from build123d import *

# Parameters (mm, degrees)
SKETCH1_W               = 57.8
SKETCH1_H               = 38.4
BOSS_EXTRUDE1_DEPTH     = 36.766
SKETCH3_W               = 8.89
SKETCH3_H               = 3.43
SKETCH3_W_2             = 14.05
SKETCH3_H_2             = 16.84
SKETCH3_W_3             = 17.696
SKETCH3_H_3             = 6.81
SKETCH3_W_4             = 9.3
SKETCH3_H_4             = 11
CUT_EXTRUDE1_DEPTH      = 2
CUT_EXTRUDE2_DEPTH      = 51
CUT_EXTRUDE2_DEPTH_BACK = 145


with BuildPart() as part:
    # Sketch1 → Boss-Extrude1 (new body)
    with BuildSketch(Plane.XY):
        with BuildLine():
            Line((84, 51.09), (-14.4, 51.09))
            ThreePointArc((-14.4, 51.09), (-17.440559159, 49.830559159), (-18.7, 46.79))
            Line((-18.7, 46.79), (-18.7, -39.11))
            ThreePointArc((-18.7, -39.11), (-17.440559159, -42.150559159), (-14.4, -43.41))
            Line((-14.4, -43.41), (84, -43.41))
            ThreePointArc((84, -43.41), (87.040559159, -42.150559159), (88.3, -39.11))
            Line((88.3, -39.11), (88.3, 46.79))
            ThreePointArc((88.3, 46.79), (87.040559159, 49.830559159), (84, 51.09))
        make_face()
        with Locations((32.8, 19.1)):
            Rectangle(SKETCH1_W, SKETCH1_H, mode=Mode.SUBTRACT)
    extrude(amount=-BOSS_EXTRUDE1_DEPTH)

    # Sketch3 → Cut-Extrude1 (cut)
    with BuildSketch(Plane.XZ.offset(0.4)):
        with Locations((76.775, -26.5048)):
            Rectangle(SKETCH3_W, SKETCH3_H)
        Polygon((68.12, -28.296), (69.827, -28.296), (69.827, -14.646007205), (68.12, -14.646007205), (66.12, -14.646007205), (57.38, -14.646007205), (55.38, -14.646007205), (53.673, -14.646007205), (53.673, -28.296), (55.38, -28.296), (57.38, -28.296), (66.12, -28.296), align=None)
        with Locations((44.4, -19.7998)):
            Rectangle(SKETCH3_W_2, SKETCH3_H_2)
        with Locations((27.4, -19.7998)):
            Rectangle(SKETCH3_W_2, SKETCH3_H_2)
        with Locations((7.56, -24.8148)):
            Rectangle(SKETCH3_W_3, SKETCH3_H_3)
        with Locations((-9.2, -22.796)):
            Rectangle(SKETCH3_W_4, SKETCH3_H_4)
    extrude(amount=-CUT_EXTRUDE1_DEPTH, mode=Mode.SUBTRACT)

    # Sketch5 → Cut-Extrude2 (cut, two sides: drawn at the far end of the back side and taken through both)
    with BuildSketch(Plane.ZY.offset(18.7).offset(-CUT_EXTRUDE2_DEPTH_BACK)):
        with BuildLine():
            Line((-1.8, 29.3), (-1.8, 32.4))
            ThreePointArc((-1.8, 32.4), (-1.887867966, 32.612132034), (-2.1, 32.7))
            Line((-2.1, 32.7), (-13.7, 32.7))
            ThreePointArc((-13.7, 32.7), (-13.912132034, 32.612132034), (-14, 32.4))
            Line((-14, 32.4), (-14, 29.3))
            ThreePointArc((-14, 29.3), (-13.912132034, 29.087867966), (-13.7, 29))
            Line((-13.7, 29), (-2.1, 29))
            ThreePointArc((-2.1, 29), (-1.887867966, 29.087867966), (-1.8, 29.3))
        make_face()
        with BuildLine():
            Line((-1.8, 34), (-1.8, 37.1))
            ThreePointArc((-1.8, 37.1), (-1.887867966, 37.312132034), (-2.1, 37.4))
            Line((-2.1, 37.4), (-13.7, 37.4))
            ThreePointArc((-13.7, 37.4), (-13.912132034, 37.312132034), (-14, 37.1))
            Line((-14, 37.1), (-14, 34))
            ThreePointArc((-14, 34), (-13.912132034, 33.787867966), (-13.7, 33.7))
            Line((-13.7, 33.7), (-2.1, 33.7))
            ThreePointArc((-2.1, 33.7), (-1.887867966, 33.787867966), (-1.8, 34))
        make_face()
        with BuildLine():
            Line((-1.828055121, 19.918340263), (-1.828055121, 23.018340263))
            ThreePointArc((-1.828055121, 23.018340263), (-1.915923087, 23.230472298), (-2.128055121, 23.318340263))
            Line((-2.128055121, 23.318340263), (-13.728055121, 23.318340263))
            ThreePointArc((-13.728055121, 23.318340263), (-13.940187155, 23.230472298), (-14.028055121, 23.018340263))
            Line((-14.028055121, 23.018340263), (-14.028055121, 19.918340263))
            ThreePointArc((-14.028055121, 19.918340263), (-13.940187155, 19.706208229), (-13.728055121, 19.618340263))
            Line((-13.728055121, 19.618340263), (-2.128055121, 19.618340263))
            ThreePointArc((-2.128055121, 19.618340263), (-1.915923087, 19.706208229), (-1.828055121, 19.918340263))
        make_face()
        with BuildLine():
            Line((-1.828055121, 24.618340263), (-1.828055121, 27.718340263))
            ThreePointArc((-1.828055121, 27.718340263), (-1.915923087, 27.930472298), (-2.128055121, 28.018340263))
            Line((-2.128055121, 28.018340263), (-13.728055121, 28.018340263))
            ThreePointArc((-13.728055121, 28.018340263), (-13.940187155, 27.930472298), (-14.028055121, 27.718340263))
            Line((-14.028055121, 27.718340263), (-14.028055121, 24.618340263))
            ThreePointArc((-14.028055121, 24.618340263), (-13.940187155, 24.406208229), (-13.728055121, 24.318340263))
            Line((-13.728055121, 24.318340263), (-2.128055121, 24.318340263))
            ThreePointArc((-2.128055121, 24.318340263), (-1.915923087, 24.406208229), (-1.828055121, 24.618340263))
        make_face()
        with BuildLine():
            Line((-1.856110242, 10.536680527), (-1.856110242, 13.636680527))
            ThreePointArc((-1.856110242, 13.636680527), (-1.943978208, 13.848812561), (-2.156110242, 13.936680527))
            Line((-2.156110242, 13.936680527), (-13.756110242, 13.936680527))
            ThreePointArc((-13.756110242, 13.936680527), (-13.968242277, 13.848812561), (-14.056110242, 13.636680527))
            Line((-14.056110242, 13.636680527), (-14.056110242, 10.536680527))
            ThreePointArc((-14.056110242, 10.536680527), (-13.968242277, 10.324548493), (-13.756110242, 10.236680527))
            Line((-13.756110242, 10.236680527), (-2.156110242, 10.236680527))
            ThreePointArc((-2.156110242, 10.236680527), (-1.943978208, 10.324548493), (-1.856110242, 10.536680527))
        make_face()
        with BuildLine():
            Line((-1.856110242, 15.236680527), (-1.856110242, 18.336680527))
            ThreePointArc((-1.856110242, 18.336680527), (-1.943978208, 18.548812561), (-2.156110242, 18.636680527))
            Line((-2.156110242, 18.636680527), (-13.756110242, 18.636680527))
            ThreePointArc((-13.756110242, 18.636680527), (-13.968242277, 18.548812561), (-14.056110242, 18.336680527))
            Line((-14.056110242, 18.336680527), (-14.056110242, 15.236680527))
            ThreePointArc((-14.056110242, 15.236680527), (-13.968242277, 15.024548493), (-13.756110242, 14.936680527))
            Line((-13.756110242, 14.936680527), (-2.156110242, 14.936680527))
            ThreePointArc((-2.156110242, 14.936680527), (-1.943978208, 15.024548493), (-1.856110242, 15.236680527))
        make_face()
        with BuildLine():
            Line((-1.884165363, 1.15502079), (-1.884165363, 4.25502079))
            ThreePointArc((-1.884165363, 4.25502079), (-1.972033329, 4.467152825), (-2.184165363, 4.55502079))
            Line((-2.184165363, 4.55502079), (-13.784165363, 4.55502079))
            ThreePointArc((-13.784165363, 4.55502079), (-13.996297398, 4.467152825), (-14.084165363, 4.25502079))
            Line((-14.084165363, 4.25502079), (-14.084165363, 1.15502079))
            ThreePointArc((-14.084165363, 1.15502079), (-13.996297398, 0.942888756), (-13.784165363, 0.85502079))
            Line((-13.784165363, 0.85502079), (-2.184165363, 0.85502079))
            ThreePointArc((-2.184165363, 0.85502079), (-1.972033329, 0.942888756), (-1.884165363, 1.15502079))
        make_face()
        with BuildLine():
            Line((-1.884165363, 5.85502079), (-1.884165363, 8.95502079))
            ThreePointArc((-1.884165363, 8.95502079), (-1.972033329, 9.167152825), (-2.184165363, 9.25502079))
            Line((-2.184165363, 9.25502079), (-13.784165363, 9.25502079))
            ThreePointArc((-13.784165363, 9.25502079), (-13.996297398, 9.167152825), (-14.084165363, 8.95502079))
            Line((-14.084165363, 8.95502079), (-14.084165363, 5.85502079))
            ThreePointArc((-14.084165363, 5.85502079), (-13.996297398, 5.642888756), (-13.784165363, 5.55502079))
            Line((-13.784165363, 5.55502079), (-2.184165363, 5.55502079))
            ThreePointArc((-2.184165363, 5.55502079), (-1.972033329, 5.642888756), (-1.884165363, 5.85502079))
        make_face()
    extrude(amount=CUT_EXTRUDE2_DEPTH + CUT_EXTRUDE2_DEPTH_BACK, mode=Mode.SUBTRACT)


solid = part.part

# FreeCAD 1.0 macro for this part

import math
import FreeCAD as App
import Part
import Sketcher
from FreeCAD import Vector
Q = App.Units.Quantity

doc = App.newDocument("Part")
body = doc.addObject("PartDesign::Body", "Body")

sketch1 = doc.addObject("Sketcher::SketchObject", "Sketch")
body.addObject(sketch1)
sketch1.AttachmentSupport = (doc.XY_Plane, [""])
sketch1.MapMode = "FlatFace"
sketch1.addGeometry([
    Part.LineSegment(Vector(84, 51.1, 0), Vector(-14.4, 51.1, 0)),
    Part.ArcOfCircle(Part.Circle(Vector(-14.4, 46.8, 0), Vector(0, 0, 1), 4.3), math.radians(90), math.radians(180)),
    Part.LineSegment(Vector(-18.7, 46.8, 0), Vector(-18.7, -39.1, 0)),
    Part.ArcOfCircle(Part.Circle(Vector(-14.4, -39.1, 0), Vector(0, 0, 1), 4.3), math.radians(180), math.radians(270)),
    Part.LineSegment(Vector(-14.4, -43.4, 0), Vector(84, -43.4, 0)),
    Part.ArcOfCircle(Part.Circle(Vector(84, -39.1, 0), Vector(0, 0, 1), 4.3), math.radians(-90), math.radians(0)),
    Part.LineSegment(Vector(88.3, -39.1, 0), Vector(88.3, 46.8, 0)),
    Part.ArcOfCircle(Part.Circle(Vector(84, 46.8, 0), Vector(0, 0, 1), 4.3), math.radians(0), math.radians(90)),
    Part.LineSegment(Vector(61.7, -0.1, 0), Vector(3.9, -0.1, 0)),
    Part.LineSegment(Vector(3.9, -0.1, 0), Vector(3.9, 38.3, 0)),
    Part.LineSegment(Vector(3.9, 38.3, 0), Vector(61.7, 38.3, 0)),
    Part.LineSegment(Vector(61.7, 38.3, 0), Vector(61.7, -0.1, 0)),
], False)
sketch1.addConstraint([
    Sketcher.Constraint("Tangent", 0, 2, 1, 1),
    Sketcher.Constraint("Tangent", 1, 2, 2, 1),
    Sketcher.Constraint("Tangent", 2, 2, 3, 1),
    Sketcher.Constraint("Tangent", 3, 2, 4, 1),
    Sketcher.Constraint("Tangent", 4, 2, 5, 1),
    Sketcher.Constraint("Tangent", 5, 2, 6, 1),
    Sketcher.Constraint("Tangent", 6, 2, 7, 1),
    Sketcher.Constraint("Tangent", 7, 2, 0, 1),
    Sketcher.Constraint("Coincident", 8, 2, 9, 1),
    Sketcher.Constraint("Coincident", 9, 2, 10, 1),
    Sketcher.Constraint("Coincident", 10, 2, 11, 1),
    Sketcher.Constraint("Coincident", 11, 2, 8, 1),
    Sketcher.Constraint("Horizontal", 0),
    Sketcher.Constraint("Vertical", 2),
    Sketcher.Constraint("Horizontal", 4),
    Sketcher.Constraint("Vertical", 6),
    Sketcher.Constraint("Horizontal", 8),
    Sketcher.Constraint("Vertical", 9),
    Sketcher.Constraint("Horizontal", 10),
    Sketcher.Constraint("Vertical", 11),
    Sketcher.Constraint("Equal", 1, 3),
    Sketcher.Constraint("Equal", 3, 5),
    Sketcher.Constraint("Equal", 5, 7),
    Sketcher.Constraint("Radius", 1, Q("4.3 mm")),
    Sketcher.Constraint("DistanceX", 0, 2, 0, 1, Q("98.4 mm")),
    Sketcher.Constraint("DistanceX", 8, 2, 8, 1, Q("57.8 mm")),
    Sketcher.Constraint("DistanceY", 2, 2, 2, 1, Q("85.9 mm")),
    Sketcher.Constraint("DistanceY", 9, 1, 9, 2, Q("38.4 mm")),
    Sketcher.Constraint("DistanceX", -1, 1, 5, 3, Q("84 mm")),
    Sketcher.Constraint("DistanceX", -1, 1, 8, 2, Q("3.9 mm")),
    Sketcher.Constraint("DistanceY", 8, 2, -1, 1, Q("0.1 mm")),
    Sketcher.Constraint("DistanceY", -1, 1, 1, 3, Q("46.79 mm")),
])
pad1 = doc.addObject("PartDesign::Pad", "Pad")
body.addObject(pad1)
pad1.Profile = sketch1
pad1.Length = 36.766
pad1.Reversed = True

sketch2 = doc.addObject("Sketcher::SketchObject", "Sketch001")
body.addObject(sketch2)
sketch2.AttachmentSupport = (doc.XZ_Plane, [""])
sketch2.MapMode = "FlatFace"
sketch2.AttachmentOffset = App.Placement(Vector(0, 0, 0.4), App.Rotation())
sketch2.addGeometry([
    Part.LineSegment(Vector(72.3, -24.8, 0), Vector(72.3, -28.2, 0)),
    Part.LineSegment(Vector(72.3, -28.2, 0), Vector(81.2, -28.2, 0)),
    Part.LineSegment(Vector(81.2, -28.2, 0), Vector(81.2, -24.8, 0)),
    Part.LineSegment(Vector(81.2, -24.8, 0), Vector(72.3, -24.8, 0)),
    Part.LineSegment(Vector(69.8, -28.3, 0), Vector(69.8, -14.6, 0)),
    Part.LineSegment(Vector(69.8, -14.6, 0), Vector(53.7, -14.6, 0)),
    Part.LineSegment(Vector(53.7, -14.6, 0), Vector(53.7, -28.3, 0)),
    Part.LineSegment(Vector(53.7, -28.3, 0), Vector(69.8, -28.3, 0)),
    Part.LineSegment(Vector(37.4, -11.4, 0), Vector(37.4, -28.2, 0)),
    Part.LineSegment(Vector(37.4, -28.2, 0), Vector(51.4, -28.2, 0)),
    Part.LineSegment(Vector(51.4, -28.2, 0), Vector(51.4, -11.4, 0)),
    Part.LineSegment(Vector(51.4, -11.4, 0), Vector(37.4, -11.4, 0)),
    Part.LineSegment(Vector(20.4, -11.4, 0), Vector(20.4, -28.2, 0)),
    Part.LineSegment(Vector(20.4, -28.2, 0), Vector(34.4, -28.2, 0)),
    Part.LineSegment(Vector(34.4, -28.2, 0), Vector(34.4, -11.4, 0)),
    Part.LineSegment(Vector(34.4, -11.4, 0), Vector(20.4, -11.4, 0)),
    Part.LineSegment(Vector(-1.3, -21.4, 0), Vector(-1.3, -28.2, 0)),
    Part.LineSegment(Vector(-1.3, -28.2, 0), Vector(16.4, -28.2, 0)),
    Part.LineSegment(Vector(16.4, -28.2, 0), Vector(16.4, -21.4, 0)),
    Part.LineSegment(Vector(16.4, -21.4, 0), Vector(-1.3, -21.4, 0)),
    Part.LineSegment(Vector(-13.8, -17.3, 0), Vector(-13.8, -28.3, 0)),
    Part.LineSegment(Vector(-13.8, -28.3, 0), Vector(-4.5, -28.3, 0)),
    Part.LineSegment(Vector(-4.5, -28.3, 0), Vector(-4.5, -17.3, 0)),
    Part.LineSegment(Vector(-4.5, -17.3, 0), Vector(-13.8, -17.3, 0)),
], False)
sketch2.addConstraint([
    Sketcher.Constraint("Coincident", 0, 2, 1, 1),
    Sketcher.Constraint("Coincident", 1, 2, 2, 1),
    Sketcher.Constraint("Coincident", 2, 2, 3, 1),
    Sketcher.Constraint("Coincident", 3, 2, 0, 1),
    Sketcher.Constraint("Coincident", 4, 2, 5, 1),
    Sketcher.Constraint("Coincident", 5, 2, 6, 1),
    Sketcher.Constraint("Coincident", 6, 2, 7, 1),
    Sketcher.Constraint("Coincident", 7, 2, 4, 1),
    Sketcher.Constraint("Coincident", 8, 2, 9, 1),
    Sketcher.Constraint("Coincident", 9, 2, 10, 1),
    Sketcher.Constraint("Coincident", 10, 2, 11, 1),
    Sketcher.Constraint("Coincident", 11, 2, 8, 1),
    Sketcher.Constraint("Coincident", 12, 2, 13, 1),
    Sketcher.Constraint("Coincident", 13, 2, 14, 1),
    Sketcher.Constraint("Coincident", 14, 2, 15, 1),
    Sketcher.Constraint("Coincident", 15, 2, 12, 1),
    Sketcher.Constraint("Coincident", 16, 2, 17, 1),
    Sketcher.Constraint("Coincident", 17, 2, 18, 1),
    Sketcher.Constraint("Coincident", 18, 2, 19, 1),
    Sketcher.Constraint("Coincident", 19, 2, 16, 1),
    Sketcher.Constraint("Coincident", 20, 2, 21, 1),
    Sketcher.Constraint("Coincident", 21, 2, 22, 1),
    Sketcher.Constraint("Coincident", 22, 2, 23, 1),
    Sketcher.Constraint("Coincident", 23, 2, 20, 1),
    Sketcher.Constraint("Vertical", 0),
    Sketcher.Constraint("Horizontal", 1),
    Sketcher.Constraint("Vertical", 2),
    Sketcher.Constraint("Horizontal", 3),
    Sketcher.Constraint("Vertical", 4),
    Sketcher.Constraint("Horizontal", 5),
    Sketcher.Constraint("Vertical", 6),
    Sketcher.Constraint("Horizontal", 7),
    Sketcher.Constraint("Vertical", 8),
    Sketcher.Constraint("Horizontal", 9),
    Sketcher.Constraint("Vertical", 10),
    Sketcher.Constraint("Horizontal", 11),
    Sketcher.Constraint("Vertical", 12),
    Sketcher.Constraint("Horizontal", 13),
    Sketcher.Constraint("Vertical", 14),
    Sketcher.Constraint("Horizontal", 15),
    Sketcher.Constraint("Vertical", 16),
    Sketcher.Constraint("Horizontal", 17),
    Sketcher.Constraint("Vertical", 18),
    Sketcher.Constraint("Horizontal", 19),
    Sketcher.Constraint("Vertical", 20),
    Sketcher.Constraint("Horizontal", 21),
    Sketcher.Constraint("Vertical", 22),
    Sketcher.Constraint("Horizontal", 23),
    Sketcher.Constraint("Horizontal", 1, 2, 8, 2),
    Sketcher.Constraint("Horizontal", 9, 2, 12, 2),
    Sketcher.Constraint("Horizontal", 11, 2, 14, 2),
    Sketcher.Constraint("Horizontal", 13, 2, 16, 2),
    Sketcher.Constraint("Horizontal", 7, 2, 20, 2),
    Sketcher.Constraint("Equal", 11, 13),
    Sketcher.Constraint("DistanceY", 20, 2, 20, 1, Q("11 mm")),
    Sketcher.Constraint("DistanceX", 21, 1, 21, 2, Q("9.3 mm")),
    Sketcher.Constraint("DistanceX", 12, 2, 8, 2, Q("17 mm")),
    Sketcher.Constraint("DistanceX", 1, 1, 1, 2, Q("8.89 mm")),
    Sketcher.Constraint("DistanceX", 9, 1, 9, 2, Q("14.05 mm")),
    Sketcher.Constraint("DistanceY", 0, 2, 0, 1, Q("3.43 mm")),
    Sketcher.Constraint("DistanceY", 8, 2, 8, 1, Q("16.84 mm")),
    Sketcher.Constraint("DistanceY", 16, 2, 16, 1, Q("6.81 mm")),
    Sketcher.Constraint("DistanceX", 5, 2, 5, 1, Q("16.154 mm")),
    Sketcher.Constraint("DistanceX", 17, 1, 17, 2, Q("17.696 mm")),
    Sketcher.Constraint("DistanceX", -1, 1, 0, 2, Q("72.33 mm")),
    Sketcher.Constraint("DistanceX", 20, 2, -1, 1, Q("13.85 mm")),
    Sketcher.Constraint("DistanceX", -1, 1, 4, 2, Q("69.827 mm")),
    Sketcher.Constraint("DistanceY", 6, 2, -1, 1, Q("28.296 mm")),
    Sketcher.Constraint("DistanceX", -1, 1, 8, 2, Q("37.375 mm")),
    Sketcher.Constraint("DistanceX", 16, 2, -1, 1, Q("1.288 mm")),
    Sketcher.Constraint("DistanceY", 0, 2, -1, 1, Q("28.2198 mm")),
    Sketcher.Constraint("DistanceY", 4, 1, 4, 2, Q("13.649993 mm")),
])
pocket1 = doc.addObject("PartDesign::Pocket", "Pocket")
body.addObject(pocket1)
pocket1.Profile = sketch2
pocket1.Length = 2

sketch3 = doc.addObject("Sketcher::SketchObject", "Sketch002")
body.addObject(sketch3)
sketch3.AttachmentSupport = (doc.YZ_Plane, [""])
sketch3.MapMode = "FlatFace"
sketch3.AttachmentOffset = App.Placement(Vector(0, 0, -18.7), App.Rotation())
sketch3.addGeometry([
    Part.LineSegment(Vector(29.3, -1.8, 0), Vector(32.4, -1.8, 0)),
    Part.ArcOfCircle(Part.Circle(Vector(32.4, -2.1, 0), Vector(0, 0, 1), 0.3), math.radians(0), math.radians(90)),
    Part.LineSegment(Vector(32.7, -2.1, 0), Vector(32.7, -13.7, 0)),
    Part.ArcOfCircle(Part.Circle(Vector(32.4, -13.7, 0), Vector(0, 0, 1), 0.3), math.radians(-90), math.radians(0)),
    Part.LineSegment(Vector(32.4, -14, 0), Vector(29.3, -14, 0)),
    Part.ArcOfCircle(Part.Circle(Vector(29.3, -13.7, 0), Vector(0, 0, 1), 0.3), math.radians(-180), math.radians(-90)),
    Part.LineSegment(Vector(29, -13.7, 0), Vector(29, -2.1, 0)),
    Part.ArcOfCircle(Part.Circle(Vector(29.3, -2.1, 0), Vector(0, 0, 1), 0.3), math.radians(90), math.radians(180)),
    Part.LineSegment(Vector(34, -1.8, 0), Vector(37.1, -1.8, 0)),
    Part.ArcOfCircle(Part.Circle(Vector(37.1, -2.1, 0), Vector(0, 0, 1), 0.3), math.radians(0), math.radians(90)),
    Part.LineSegment(Vector(37.4, -2.1, 0), Vector(37.4, -13.7, 0)),
    Part.ArcOfCircle(Part.Circle(Vector(37.1, -13.7, 0), Vector(0, 0, 1), 0.3), math.radians(-90), math.radians(0)),
    Part.LineSegment(Vector(37.1, -14, 0), Vector(34, -14, 0)),
    Part.ArcOfCircle(Part.Circle(Vector(34, -13.7, 0), Vector(0, 0, 1), 0.3), math.radians(-180), math.radians(-90)),
    Part.LineSegment(Vector(33.7, -13.7, 0), Vector(33.7, -2.1, 0)),
    Part.ArcOfCircle(Part.Circle(Vector(34, -2.1, 0), Vector(0, 0, 1), 0.3), math.radians(90), math.radians(180)),
    Part.LineSegment(Vector(19.92, -1.83, 0), Vector(23.02, -1.83, 0)),
    Part.ArcOfCircle(Part.Circle(Vector(23.02, -2.13, 0), Vector(0, 0, 1), 0.3), math.radians(0), math.radians(90)),
    Part.LineSegment(Vector(23.32, -2.13, 0), Vector(23.32, -13.73, 0)),
    Part.ArcOfCircle(Part.Circle(Vector(23.02, -13.73, 0), Vector(0, 0, 1), 0.3), math.radians(-90), math.radians(0)),
    Part.LineSegment(Vector(23.02, -14.03, 0), Vector(19.92, -14.03, 0)),
    Part.ArcOfCircle(Part.Circle(Vector(19.92, -13.73, 0), Vector(0, 0, 1), 0.3), math.radians(-180), math.radians(-90)),
    Part.LineSegment(Vector(19.62, -13.73, 0), Vector(19.62, -2.13, 0)),
    Part.ArcOfCircle(Part.Circle(Vector(19.92, -2.13, 0), Vector(0, 0, 1), 0.3), math.radians(90), math.radians(180)),
    Part.LineSegment(Vector(24.62, -1.83, 0), Vector(27.72, -1.83, 0)),
    Part.ArcOfCircle(Part.Circle(Vector(27.72, -2.13, 0), Vector(0, 0, 1), 0.3), math.radians(0), math.radians(90)),
    Part.LineSegment(Vector(28.02, -2.13, 0), Vector(28.02, -13.73, 0)),
    Part.ArcOfCircle(Part.Circle(Vector(27.72, -13.73, 0), Vector(0, 0, 1), 0.3), math.radians(-90), math.radians(0)),
    Part.LineSegment(Vector(27.72, -14.03, 0), Vector(24.62, -14.03, 0)),
    Part.ArcOfCircle(Part.Circle(Vector(24.62, -13.73, 0), Vector(0, 0, 1), 0.3), math.radians(-180), math.radians(-90)),
    Part.LineSegment(Vector(24.32, -13.73, 0), Vector(24.32, -2.13, 0)),
    Part.ArcOfCircle(Part.Circle(Vector(24.62, -2.13, 0), Vector(0, 0, 1), 0.3), math.radians(90), math.radians(180)),
    Part.LineSegment(Vector(10.54, -1.86, 0), Vector(13.64, -1.86, 0)),
    Part.ArcOfCircle(Part.Circle(Vector(13.64, -2.16, 0), Vector(0, 0, 1), 0.3), math.radians(0), math.radians(90)),
    Part.LineSegment(Vector(13.94, -2.16, 0), Vector(13.94, -13.76, 0)),
    Part.ArcOfCircle(Part.Circle(Vector(13.64, -13.76, 0), Vector(0, 0, 1), 0.3), math.radians(-90), math.radians(0)),
    Part.LineSegment(Vector(13.64, -14.06, 0), Vector(10.54, -14.06, 0)),
    Part.ArcOfCircle(Part.Circle(Vector(10.54, -13.76, 0), Vector(0, 0, 1), 0.3), math.radians(180), math.radians(270)),
    Part.LineSegment(Vector(10.24, -13.76, 0), Vector(10.24, -2.16, 0)),
    Part.ArcOfCircle(Part.Circle(Vector(10.54, -2.16, 0), Vector(0, 0, 1), 0.3), math.radians(90), math.radians(180)),
    Part.LineSegment(Vector(15.24, -1.86, 0), Vector(18.34, -1.86, 0)),
    Part.ArcOfCircle(Part.Circle(Vector(18.34, -2.16, 0), Vector(0, 0, 1), 0.3), math.radians(0), math.radians(90)),
    Part.LineSegment(Vector(18.64, -2.16, 0), Vector(18.64, -13.76, 0)),
    Part.ArcOfCircle(Part.Circle(Vector(18.34, -13.76, 0), Vector(0, 0, 1), 0.3), math.radians(-90), math.radians(0)),
    Part.LineSegment(Vector(18.34, -14.06, 0), Vector(15.24, -14.06, 0)),
    Part.ArcOfCircle(Part.Circle(Vector(15.24, -13.76, 0), Vector(0, 0, 1), 0.3), math.radians(180), math.radians(270)),
    Part.LineSegment(Vector(14.94, -13.76, 0), Vector(14.94, -2.16, 0)),
    Part.ArcOfCircle(Part.Circle(Vector(15.24, -2.16, 0), Vector(0, 0, 1), 0.3), math.radians(90), math.radians(180)),
    Part.LineSegment(Vector(1.16, -1.88, 0), Vector(4.26, -1.88, 0)),
    Part.ArcOfCircle(Part.Circle(Vector(4.26, -2.18, 0), Vector(0, 0, 1), 0.3), math.radians(0), math.radians(90)),
    Part.LineSegment(Vector(4.56, -2.18, 0), Vector(4.56, -13.78, 0)),
    Part.ArcOfCircle(Part.Circle(Vector(4.26, -13.78, 0), Vector(0, 0, 1), 0.3), math.radians(-90), math.radians(0)),
    Part.LineSegment(Vector(4.26, -14.08, 0), Vector(1.16, -14.08, 0)),
    Part.ArcOfCircle(Part.Circle(Vector(1.16, -13.78, 0), Vector(0, 0, 1), 0.3), math.radians(180), math.radians(270)),
    Part.LineSegment(Vector(0.86, -13.78, 0), Vector(0.86, -2.18, 0)),
    Part.ArcOfCircle(Part.Circle(Vector(1.16, -2.18, 0), Vector(0, 0, 1), 0.3), math.radians(90), math.radians(180)),
    Part.LineSegment(Vector(5.86, -1.88, 0), Vector(8.96, -1.88, 0)),
    Part.ArcOfCircle(Part.Circle(Vector(8.96, -2.18, 0), Vector(0, 0, 1), 0.3), math.radians(0), math.radians(90)),
    Part.LineSegment(Vector(9.26, -2.18, 0), Vector(9.26, -13.78, 0)),
    Part.ArcOfCircle(Part.Circle(Vector(8.96, -13.78, 0), Vector(0, 0, 1), 0.3), math.radians(-90), math.radians(0)),
    Part.LineSegment(Vector(8.96, -14.08, 0), Vector(5.86, -14.08, 0)),
    Part.ArcOfCircle(Part.Circle(Vector(5.86, -13.78, 0), Vector(0, 0, 1), 0.3), math.radians(180), math.radians(270)),
    Part.LineSegment(Vector(5.56, -13.78, 0), Vector(5.56, -2.18, 0)),
    Part.ArcOfCircle(Part.Circle(Vector(5.86, -2.18, 0), Vector(0, 0, 1), 0.3), math.radians(90), math.radians(180)),
], False)
sketch3.addConstraint([
    Sketcher.Constraint("Tangent", 0, 2, 1, 2),
    Sketcher.Constraint("Tangent", 1, 1, 2, 1),
    Sketcher.Constraint("Tangent", 2, 2, 3, 2),
    Sketcher.Constraint("Tangent", 3, 1, 4, 1),
    Sketcher.Constraint("Tangent", 4, 2, 5, 2),
    Sketcher.Constraint("Tangent", 5, 1, 6, 1),
    Sketcher.Constraint("Tangent", 6, 2, 7, 2),
    Sketcher.Constraint("Tangent", 7, 1, 0, 1),
    Sketcher.Constraint("Tangent", 8, 2, 9, 2),
    Sketcher.Constraint("Tangent", 9, 1, 10, 1),
    Sketcher.Constraint("Tangent", 10, 2, 11, 2),
    Sketcher.Constraint("Tangent", 11, 1, 12, 1),
    Sketcher.Constraint("Tangent", 12, 2, 13, 2),
    Sketcher.Constraint("Tangent", 13, 1, 14, 1),
    Sketcher.Constraint("Tangent", 14, 2, 15, 2),
    Sketcher.Constraint("Tangent", 15, 1, 8, 1),
    Sketcher.Constraint("Tangent", 16, 2, 17, 2),
    Sketcher.Constraint("Tangent", 17, 1, 18, 1),
    Sketcher.Constraint("Tangent", 18, 2, 19, 2),
    Sketcher.Constraint("Tangent", 19, 1, 20, 1),
    Sketcher.Constraint("Tangent", 20, 2, 21, 2),
    Sketcher.Constraint("Tangent", 21, 1, 22, 1),
    Sketcher.Constraint("Tangent", 22, 2, 23, 2),
    Sketcher.Constraint("Tangent", 23, 1, 16, 1),
    Sketcher.Constraint("Tangent", 24, 2, 25, 2),
    Sketcher.Constraint("Tangent", 25, 1, 26, 1),
    Sketcher.Constraint("Tangent", 26, 2, 27, 2),
    Sketcher.Constraint("Tangent", 27, 1, 28, 1),
    Sketcher.Constraint("Tangent", 28, 2, 29, 2),
    Sketcher.Constraint("Tangent", 29, 1, 30, 1),
    Sketcher.Constraint("Tangent", 30, 2, 31, 2),
    Sketcher.Constraint("Tangent", 31, 1, 24, 1),
    Sketcher.Constraint("Tangent", 32, 2, 33, 2),
    Sketcher.Constraint("Tangent", 33, 1, 34, 1),
    Sketcher.Constraint("Tangent", 34, 2, 35, 2),
    Sketcher.Constraint("Tangent", 35, 1, 36, 1),
    Sketcher.Constraint("Tangent", 36, 2, 37, 2),
    Sketcher.Constraint("Tangent", 37, 1, 38, 1),
    Sketcher.Constraint("Tangent", 38, 2, 39, 2),
    Sketcher.Constraint("Tangent", 39, 1, 32, 1),
    Sketcher.Constraint("Tangent", 40, 2, 41, 2),
    Sketcher.Constraint("Tangent", 41, 1, 42, 1),
    Sketcher.Constraint("Tangent", 42, 2, 43, 2),
    Sketcher.Constraint("Tangent", 43, 1, 44, 1),
    Sketcher.Constraint("Tangent", 44, 2, 45, 2),
    Sketcher.Constraint("Tangent", 45, 1, 46, 1),
    Sketcher.Constraint("Tangent", 46, 2, 47, 2),
    Sketcher.Constraint("Tangent", 47, 1, 40, 1),
    Sketcher.Constraint("Tangent", 48, 2, 49, 2),
    Sketcher.Constraint("Tangent", 49, 1, 50, 1),
    Sketcher.Constraint("Tangent", 50, 2, 51, 2),
    Sketcher.Constraint("Tangent", 51, 1, 52, 1),
    Sketcher.Constraint("Tangent", 52, 2, 53, 2),
    Sketcher.Constraint("Tangent", 53, 1, 54, 1),
    Sketcher.Constraint("Tangent", 54, 2, 55, 2),
    Sketcher.Constraint("Tangent", 55, 1, 48, 1),
    Sketcher.Constraint("Tangent", 56, 2, 57, 2),
    Sketcher.Constraint("Tangent", 57, 1, 58, 1),
    Sketcher.Constraint("Tangent", 58, 2, 59, 2),
    Sketcher.Constraint("Tangent", 59, 1, 60, 1),
    Sketcher.Constraint("Tangent", 60, 2, 61, 2),
    Sketcher.Constraint("Tangent", 61, 1, 62, 1),
    Sketcher.Constraint("Tangent", 62, 2, 63, 2),
    Sketcher.Constraint("Tangent", 63, 1, 56, 1),
    Sketcher.Constraint("Horizontal", 0),
    Sketcher.Constraint("Vertical", 2),
    Sketcher.Constraint("Horizontal", 4),
    Sketcher.Constraint("Vertical", 6),
    Sketcher.Constraint("Horizontal", 8),
    Sketcher.Constraint("Vertical", 10),
    Sketcher.Constraint("Horizontal", 12),
    Sketcher.Constraint("Vertical", 14),
    Sketcher.Constraint("Horizontal", 16),
    Sketcher.Constraint("Vertical", 18),
    Sketcher.Constraint("Horizontal", 20),
    Sketcher.Constraint("Vertical", 22),
    Sketcher.Constraint("Horizontal", 24),
    Sketcher.Constraint("Vertical", 26),
    Sketcher.Constraint("Horizontal", 28),
    Sketcher.Constraint("Vertical", 30),
    Sketcher.Constraint("Horizontal", 32),
    Sketcher.Constraint("Vertical", 34),
    Sketcher.Constraint("Horizontal", 36),
    Sketcher.Constraint("Vertical", 38),
    Sketcher.Constraint("Horizontal", 40),
    Sketcher.Constraint("Vertical", 42),
    Sketcher.Constraint("Horizontal", 44),
    Sketcher.Constraint("Vertical", 46),
    Sketcher.Constraint("Horizontal", 48),
    Sketcher.Constraint("Vertical", 50),
    Sketcher.Constraint("Horizontal", 52),
    Sketcher.Constraint("Vertical", 54),
    Sketcher.Constraint("Horizontal", 56),
    Sketcher.Constraint("Vertical", 58),
    Sketcher.Constraint("Horizontal", 60),
    Sketcher.Constraint("Vertical", 62),
    Sketcher.Constraint("Equal", 1, 3),
    Sketcher.Constraint("Equal", 3, 5),
    Sketcher.Constraint("Equal", 5, 7),
    Sketcher.Constraint("Equal", 7, 9),
    Sketcher.Constraint("Equal", 9, 11),
    Sketcher.Constraint("Equal", 11, 13),
    Sketcher.Constraint("Equal", 13, 15),
    Sketcher.Constraint("Equal", 15, 17),
    Sketcher.Constraint("Equal", 17, 19),
    Sketcher.Constraint("Equal", 19, 21),
    Sketcher.Constraint("Equal", 21, 23),
    Sketcher.Constraint("Equal", 23, 25),
    Sketcher.Constraint("Equal", 25, 27),
    Sketcher.Constraint("Equal", 27, 29),
    Sketcher.Constraint("Equal", 29, 31),
    Sketcher.Constraint("Equal", 31, 33),
    Sketcher.Constraint("Equal", 33, 35),
    Sketcher.Constraint("Equal", 35, 37),
    Sketcher.Constraint("Equal", 37, 39),
    Sketcher.Constraint("Equal", 39, 41),
    Sketcher.Constraint("Equal", 41, 43),
    Sketcher.Constraint("Equal", 43, 45),
    Sketcher.Constraint("Equal", 45, 47),
    Sketcher.Constraint("Equal", 47, 49),
    Sketcher.Constraint("Equal", 49, 51),
    Sketcher.Constraint("Equal", 51, 53),
    Sketcher.Constraint("Equal", 53, 55),
    Sketcher.Constraint("Equal", 55, 57),
    Sketcher.Constraint("Equal", 57, 59),
    Sketcher.Constraint("Equal", 59, 61),
    Sketcher.Constraint("Equal", 61, 63),
    Sketcher.Constraint("Horizontal", 7, 3, 9, 3),
    Sketcher.Constraint("Horizontal", 5, 3, 11, 3),
    Sketcher.Constraint("Horizontal", 23, 3, 25, 3),
    Sketcher.Constraint("Horizontal", 21, 3, 27, 3),
    Sketcher.Constraint("Horizontal", 39, 3, 41, 3),
    Sketcher.Constraint("Horizontal", 37, 3, 43, 3),
    Sketcher.Constraint("Horizontal", 55, 3, 57, 3),
    Sketcher.Constraint("Horizontal", 53, 3, 59, 3),
    Sketcher.Constraint("Equal", 4, 8),
    Sketcher.Constraint("Equal", 12, 16),
    Sketcher.Constraint("Equal", 20, 24),
    Sketcher.Constraint("Equal", 28, 32),
    Sketcher.Constraint("Equal", 36, 40),
    Sketcher.Constraint("Equal", 44, 48),
    Sketcher.Constraint("Equal", 52, 56),
    Sketcher.Constraint("Equal", 14, 18),
    Sketcher.Constraint("Equal", 30, 34),
    Sketcher.Constraint("Equal", 46, 50),
    Sketcher.Constraint("Radius", 1, Q("0.3 mm")),
    Sketcher.Constraint("DistanceX", 0, 1, 0, 2, Q("3.1 mm")),
    Sketcher.Constraint("DistanceY", 2, 2, 2, 1, Q("11.6 mm")),
    Sketcher.Constraint("DistanceX", -1, 1, 13, 3, Q("34 mm")),
    Sketcher.Constraint("DistanceY", 3, 1, -1, 1, Q("14 mm")),
    Sketcher.Constraint("DistanceX", -1, 1, 5, 1, Q("29 mm")),
    Sketcher.Constraint("DistanceX", -1, 1, 17, 3, Q("23.01834 mm")),
    Sketcher.Constraint("DistanceX", -1, 1, 25, 3, Q("27.71834 mm")),
    Sketcher.Constraint("DistanceX", -1, 1, 33, 3, Q("13.636681 mm")),
    Sketcher.Constraint("DistanceY", 33, 3, -1, 1, Q("2.15611 mm")),
    Sketcher.Constraint("DistanceX", -1, 1, 41, 3, Q("18.336681 mm")),
    Sketcher.Constraint("DistanceX", -1, 1, 49, 3, Q("4.255021 mm")),
    Sketcher.Constraint("DistanceX", -1, 1, 57, 3, Q("8.955021 mm")),
    Sketcher.Constraint("DistanceY", 17, 3, -1, 1, Q("2.128055 mm")),
    Sketcher.Constraint("DistanceY", 49, 3, -1, 1, Q("2.184165 mm")),
])
pocket2 = doc.addObject("PartDesign::Pocket", "Pocket001")
body.addObject(pocket2)
pocket2.Profile = sketch3
pocket2.Type = "ThroughAll"
pocket2.Midplane = True

doc.recompute()
